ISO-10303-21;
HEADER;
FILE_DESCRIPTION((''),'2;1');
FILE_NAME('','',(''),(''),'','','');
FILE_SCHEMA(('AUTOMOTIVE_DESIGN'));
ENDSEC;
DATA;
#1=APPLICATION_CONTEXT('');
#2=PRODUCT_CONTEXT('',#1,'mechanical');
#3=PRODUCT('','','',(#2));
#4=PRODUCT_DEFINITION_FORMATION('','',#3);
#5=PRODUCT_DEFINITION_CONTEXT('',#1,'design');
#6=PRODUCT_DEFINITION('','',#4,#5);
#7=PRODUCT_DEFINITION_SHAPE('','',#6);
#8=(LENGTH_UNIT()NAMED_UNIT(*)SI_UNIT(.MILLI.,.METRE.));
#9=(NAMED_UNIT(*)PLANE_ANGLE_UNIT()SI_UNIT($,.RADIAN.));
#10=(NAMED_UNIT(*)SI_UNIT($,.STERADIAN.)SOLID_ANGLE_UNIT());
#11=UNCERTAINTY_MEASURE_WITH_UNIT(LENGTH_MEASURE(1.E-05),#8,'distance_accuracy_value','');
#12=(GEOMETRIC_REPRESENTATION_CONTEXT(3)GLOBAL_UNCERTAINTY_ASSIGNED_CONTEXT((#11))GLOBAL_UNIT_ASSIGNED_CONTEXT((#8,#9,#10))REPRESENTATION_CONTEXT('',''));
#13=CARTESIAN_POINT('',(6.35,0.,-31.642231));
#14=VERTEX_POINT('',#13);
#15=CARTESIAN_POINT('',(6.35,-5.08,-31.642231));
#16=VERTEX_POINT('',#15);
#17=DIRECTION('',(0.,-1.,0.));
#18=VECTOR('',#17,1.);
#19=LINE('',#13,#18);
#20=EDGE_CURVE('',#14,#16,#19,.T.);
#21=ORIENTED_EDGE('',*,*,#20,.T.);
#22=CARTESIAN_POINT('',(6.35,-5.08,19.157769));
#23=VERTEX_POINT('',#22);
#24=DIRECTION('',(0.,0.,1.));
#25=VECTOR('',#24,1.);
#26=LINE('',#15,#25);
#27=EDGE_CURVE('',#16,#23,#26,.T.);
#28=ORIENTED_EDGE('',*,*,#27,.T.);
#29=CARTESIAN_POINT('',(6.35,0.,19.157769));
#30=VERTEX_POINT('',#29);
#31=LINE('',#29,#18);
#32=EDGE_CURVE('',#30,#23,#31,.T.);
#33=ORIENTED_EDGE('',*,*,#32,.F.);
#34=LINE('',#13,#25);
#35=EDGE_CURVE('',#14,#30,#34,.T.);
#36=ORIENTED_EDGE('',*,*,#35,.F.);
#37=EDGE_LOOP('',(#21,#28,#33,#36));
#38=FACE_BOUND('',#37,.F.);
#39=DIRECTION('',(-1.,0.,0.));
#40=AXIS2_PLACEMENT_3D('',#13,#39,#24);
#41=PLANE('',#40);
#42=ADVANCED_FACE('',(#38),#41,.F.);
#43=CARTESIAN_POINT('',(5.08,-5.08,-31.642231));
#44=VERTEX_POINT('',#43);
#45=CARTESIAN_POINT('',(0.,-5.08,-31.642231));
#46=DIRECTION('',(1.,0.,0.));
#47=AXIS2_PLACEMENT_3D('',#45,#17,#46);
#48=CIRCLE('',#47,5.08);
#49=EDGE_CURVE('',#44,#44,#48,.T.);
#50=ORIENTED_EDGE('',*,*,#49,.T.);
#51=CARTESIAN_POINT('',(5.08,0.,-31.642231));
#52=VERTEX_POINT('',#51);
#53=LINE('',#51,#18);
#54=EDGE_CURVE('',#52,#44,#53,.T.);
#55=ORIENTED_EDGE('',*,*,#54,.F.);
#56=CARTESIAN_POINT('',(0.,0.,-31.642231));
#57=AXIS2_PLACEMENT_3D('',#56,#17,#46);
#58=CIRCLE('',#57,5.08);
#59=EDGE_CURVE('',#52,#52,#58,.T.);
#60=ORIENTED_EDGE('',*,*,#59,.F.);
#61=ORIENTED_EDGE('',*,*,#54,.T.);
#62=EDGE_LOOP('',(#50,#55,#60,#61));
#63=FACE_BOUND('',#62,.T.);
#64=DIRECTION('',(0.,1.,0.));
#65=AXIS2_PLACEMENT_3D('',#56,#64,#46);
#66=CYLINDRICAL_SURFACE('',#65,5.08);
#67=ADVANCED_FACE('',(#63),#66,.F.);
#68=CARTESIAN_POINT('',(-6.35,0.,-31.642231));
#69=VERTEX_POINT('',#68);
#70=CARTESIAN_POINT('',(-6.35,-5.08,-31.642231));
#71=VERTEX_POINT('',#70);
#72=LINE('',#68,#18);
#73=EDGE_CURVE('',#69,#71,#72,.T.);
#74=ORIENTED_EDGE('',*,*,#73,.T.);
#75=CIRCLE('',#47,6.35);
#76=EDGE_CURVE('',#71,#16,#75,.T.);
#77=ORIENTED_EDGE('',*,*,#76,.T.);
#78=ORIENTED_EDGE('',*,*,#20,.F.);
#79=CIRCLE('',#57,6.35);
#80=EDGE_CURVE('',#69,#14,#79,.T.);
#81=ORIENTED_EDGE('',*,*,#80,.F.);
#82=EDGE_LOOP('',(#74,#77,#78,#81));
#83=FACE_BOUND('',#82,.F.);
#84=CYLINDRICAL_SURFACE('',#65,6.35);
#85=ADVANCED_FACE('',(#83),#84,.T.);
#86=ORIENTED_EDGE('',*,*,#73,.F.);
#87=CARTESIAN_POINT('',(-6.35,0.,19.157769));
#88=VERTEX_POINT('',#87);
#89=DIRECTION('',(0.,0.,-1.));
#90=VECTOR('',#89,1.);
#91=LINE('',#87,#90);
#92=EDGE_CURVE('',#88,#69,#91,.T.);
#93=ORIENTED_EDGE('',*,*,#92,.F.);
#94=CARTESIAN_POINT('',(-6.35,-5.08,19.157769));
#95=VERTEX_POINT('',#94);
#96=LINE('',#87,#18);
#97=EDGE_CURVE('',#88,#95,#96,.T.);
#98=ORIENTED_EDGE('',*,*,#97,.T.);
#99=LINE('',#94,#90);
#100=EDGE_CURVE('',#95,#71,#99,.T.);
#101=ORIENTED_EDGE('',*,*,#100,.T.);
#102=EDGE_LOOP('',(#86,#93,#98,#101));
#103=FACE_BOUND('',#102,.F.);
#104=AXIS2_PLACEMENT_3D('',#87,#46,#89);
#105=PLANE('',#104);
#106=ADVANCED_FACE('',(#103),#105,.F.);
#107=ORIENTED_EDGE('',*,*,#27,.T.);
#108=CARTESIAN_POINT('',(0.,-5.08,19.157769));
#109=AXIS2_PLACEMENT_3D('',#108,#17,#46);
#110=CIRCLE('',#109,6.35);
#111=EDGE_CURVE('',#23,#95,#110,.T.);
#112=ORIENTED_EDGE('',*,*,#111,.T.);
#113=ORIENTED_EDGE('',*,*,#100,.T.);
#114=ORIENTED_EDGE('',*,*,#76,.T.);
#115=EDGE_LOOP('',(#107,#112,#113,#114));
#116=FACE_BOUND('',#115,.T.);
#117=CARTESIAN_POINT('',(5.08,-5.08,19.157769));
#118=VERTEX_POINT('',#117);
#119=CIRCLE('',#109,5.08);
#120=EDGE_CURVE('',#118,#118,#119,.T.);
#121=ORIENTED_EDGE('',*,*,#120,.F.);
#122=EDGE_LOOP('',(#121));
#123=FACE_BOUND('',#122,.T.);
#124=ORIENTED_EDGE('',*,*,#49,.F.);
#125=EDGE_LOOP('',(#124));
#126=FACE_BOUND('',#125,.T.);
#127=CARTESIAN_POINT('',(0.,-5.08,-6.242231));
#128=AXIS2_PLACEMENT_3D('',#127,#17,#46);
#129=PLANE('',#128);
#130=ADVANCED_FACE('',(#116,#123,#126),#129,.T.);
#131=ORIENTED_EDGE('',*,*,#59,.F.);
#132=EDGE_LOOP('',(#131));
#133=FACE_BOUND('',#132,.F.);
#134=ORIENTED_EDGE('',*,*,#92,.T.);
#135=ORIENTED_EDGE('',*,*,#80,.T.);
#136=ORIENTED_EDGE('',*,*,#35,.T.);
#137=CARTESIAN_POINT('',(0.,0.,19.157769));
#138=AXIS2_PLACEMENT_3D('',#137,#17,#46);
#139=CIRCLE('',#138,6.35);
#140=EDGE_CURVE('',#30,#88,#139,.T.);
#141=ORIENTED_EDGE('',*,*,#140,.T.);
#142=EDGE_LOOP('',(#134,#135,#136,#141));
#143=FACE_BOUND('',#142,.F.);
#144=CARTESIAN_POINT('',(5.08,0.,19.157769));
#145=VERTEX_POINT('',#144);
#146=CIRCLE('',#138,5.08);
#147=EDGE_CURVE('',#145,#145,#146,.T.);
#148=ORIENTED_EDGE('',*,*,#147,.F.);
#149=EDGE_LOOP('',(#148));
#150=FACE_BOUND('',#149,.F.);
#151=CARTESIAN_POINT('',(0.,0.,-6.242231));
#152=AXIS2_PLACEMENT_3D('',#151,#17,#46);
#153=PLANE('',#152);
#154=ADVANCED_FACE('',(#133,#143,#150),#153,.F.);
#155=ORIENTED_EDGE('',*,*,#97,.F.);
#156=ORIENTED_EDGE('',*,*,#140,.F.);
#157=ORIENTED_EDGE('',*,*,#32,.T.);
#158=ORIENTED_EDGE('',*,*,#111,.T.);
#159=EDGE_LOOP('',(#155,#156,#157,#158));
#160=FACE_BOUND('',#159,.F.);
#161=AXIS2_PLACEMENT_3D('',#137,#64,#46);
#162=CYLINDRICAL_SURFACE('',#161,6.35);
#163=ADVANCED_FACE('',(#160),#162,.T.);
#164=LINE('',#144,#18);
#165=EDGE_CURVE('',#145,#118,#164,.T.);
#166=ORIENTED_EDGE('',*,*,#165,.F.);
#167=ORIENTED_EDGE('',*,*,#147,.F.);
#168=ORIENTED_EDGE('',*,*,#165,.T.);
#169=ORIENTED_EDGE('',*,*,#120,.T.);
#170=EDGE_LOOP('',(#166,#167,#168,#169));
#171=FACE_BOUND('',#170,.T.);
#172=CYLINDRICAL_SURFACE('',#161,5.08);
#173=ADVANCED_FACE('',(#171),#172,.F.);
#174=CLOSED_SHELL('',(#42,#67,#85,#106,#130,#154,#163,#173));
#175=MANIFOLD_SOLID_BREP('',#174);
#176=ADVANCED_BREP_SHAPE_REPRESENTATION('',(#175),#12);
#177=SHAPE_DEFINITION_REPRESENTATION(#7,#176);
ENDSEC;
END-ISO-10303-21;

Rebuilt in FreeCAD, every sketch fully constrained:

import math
import FreeCAD as App
import Part
import Sketcher
Q = App.Units.Quantity

doc = App.newDocument("Part")
params = doc.addObject("Spreadsheet::Sheet", "Params")
for row, (alias, value) in enumerate([
    ("sketch1_diameter", "0.4 in"),
    ("sketch1_height", "2 in"),
    ("sketch1_radius", "0.25 in"),
    ("pad1_length", "0.2 in"),
], start=1):
    params.set(f"A{row}", alias)
    params.set(f"B{row}", "=" + value)
    params.setAlias(f"B{row}", alias)

body = doc.addObject("PartDesign::Body", "Body")

sketch1 = body.newObject("Sketcher::SketchObject", "Sketch")
sketch1.AttachmentSupport = (doc.getObject("XZ_Plane"), [""])
sketch1.MapMode = "FlatFace"
sketch1.addGeometry([
    Part.LineSegment(App.Vector(6, -32, 0), App.Vector(6, 19, 0)),
    Part.ArcOfCircle(Part.Circle(App.Vector(0, 19, 0), App.Vector(0, 0, 1), 6), math.radians(0), math.radians(180)),
    Part.LineSegment(App.Vector(-6, 19, 0), App.Vector(-6, -32, 0)),
    Part.ArcOfCircle(Part.Circle(App.Vector(0, -32, 0), App.Vector(0, 0, 1), 6), math.radians(180), math.radians(360)),
    Part.Circle(App.Vector(0, -32, 0), App.Vector(0, 0, 1), 5),
    Part.Circle(App.Vector(0, 19, 0), App.Vector(0, 0, 1), 5),
], False)
sketch1.addConstraint([
    Sketcher.Constraint("Tangent", 0, 2, 1, 1),
    Sketcher.Constraint("Tangent", 1, 2, 2, 1),
    Sketcher.Constraint("Tangent", 2, 2, 3, 1),
    Sketcher.Constraint("Tangent", 3, 2, 0, 1),
    Sketcher.Constraint("Vertical", 0),
    Sketcher.Constraint("Vertical", 2),
    Sketcher.Constraint("Coincident", 4, 3, 3, 3),
    Sketcher.Constraint("Coincident", 5, 3, 1, 3),
    Sketcher.Constraint("Equal", 4, 5),
    Sketcher.Constraint("PointOnObject", 1, 3, -2),
    Sketcher.Constraint("Diameter", 4, Q("0.4 in")),
    Sketcher.Constraint("DistanceY", 0, 1, 0, 2, Q("2 in")),
    Sketcher.Constraint("Radius", 1, Q("0.25 in")),
    Sketcher.Constraint("DistanceY", -1, 1, 1, 3, Q("19.157769 mm")),
])
sketch1.setExpression("Constraints[10]", "Params.sketch1_diameter")
sketch1.setExpression("Constraints[11]", "Params.sketch1_height")
sketch1.setExpression("Constraints[12]", "Params.sketch1_radius")
pad1 = body.newObject("PartDesign::Pad", "Pad")
pad1.Profile = sketch1
pad1.setExpression("Length", "Params.pad1_length")

doc.recompute()
